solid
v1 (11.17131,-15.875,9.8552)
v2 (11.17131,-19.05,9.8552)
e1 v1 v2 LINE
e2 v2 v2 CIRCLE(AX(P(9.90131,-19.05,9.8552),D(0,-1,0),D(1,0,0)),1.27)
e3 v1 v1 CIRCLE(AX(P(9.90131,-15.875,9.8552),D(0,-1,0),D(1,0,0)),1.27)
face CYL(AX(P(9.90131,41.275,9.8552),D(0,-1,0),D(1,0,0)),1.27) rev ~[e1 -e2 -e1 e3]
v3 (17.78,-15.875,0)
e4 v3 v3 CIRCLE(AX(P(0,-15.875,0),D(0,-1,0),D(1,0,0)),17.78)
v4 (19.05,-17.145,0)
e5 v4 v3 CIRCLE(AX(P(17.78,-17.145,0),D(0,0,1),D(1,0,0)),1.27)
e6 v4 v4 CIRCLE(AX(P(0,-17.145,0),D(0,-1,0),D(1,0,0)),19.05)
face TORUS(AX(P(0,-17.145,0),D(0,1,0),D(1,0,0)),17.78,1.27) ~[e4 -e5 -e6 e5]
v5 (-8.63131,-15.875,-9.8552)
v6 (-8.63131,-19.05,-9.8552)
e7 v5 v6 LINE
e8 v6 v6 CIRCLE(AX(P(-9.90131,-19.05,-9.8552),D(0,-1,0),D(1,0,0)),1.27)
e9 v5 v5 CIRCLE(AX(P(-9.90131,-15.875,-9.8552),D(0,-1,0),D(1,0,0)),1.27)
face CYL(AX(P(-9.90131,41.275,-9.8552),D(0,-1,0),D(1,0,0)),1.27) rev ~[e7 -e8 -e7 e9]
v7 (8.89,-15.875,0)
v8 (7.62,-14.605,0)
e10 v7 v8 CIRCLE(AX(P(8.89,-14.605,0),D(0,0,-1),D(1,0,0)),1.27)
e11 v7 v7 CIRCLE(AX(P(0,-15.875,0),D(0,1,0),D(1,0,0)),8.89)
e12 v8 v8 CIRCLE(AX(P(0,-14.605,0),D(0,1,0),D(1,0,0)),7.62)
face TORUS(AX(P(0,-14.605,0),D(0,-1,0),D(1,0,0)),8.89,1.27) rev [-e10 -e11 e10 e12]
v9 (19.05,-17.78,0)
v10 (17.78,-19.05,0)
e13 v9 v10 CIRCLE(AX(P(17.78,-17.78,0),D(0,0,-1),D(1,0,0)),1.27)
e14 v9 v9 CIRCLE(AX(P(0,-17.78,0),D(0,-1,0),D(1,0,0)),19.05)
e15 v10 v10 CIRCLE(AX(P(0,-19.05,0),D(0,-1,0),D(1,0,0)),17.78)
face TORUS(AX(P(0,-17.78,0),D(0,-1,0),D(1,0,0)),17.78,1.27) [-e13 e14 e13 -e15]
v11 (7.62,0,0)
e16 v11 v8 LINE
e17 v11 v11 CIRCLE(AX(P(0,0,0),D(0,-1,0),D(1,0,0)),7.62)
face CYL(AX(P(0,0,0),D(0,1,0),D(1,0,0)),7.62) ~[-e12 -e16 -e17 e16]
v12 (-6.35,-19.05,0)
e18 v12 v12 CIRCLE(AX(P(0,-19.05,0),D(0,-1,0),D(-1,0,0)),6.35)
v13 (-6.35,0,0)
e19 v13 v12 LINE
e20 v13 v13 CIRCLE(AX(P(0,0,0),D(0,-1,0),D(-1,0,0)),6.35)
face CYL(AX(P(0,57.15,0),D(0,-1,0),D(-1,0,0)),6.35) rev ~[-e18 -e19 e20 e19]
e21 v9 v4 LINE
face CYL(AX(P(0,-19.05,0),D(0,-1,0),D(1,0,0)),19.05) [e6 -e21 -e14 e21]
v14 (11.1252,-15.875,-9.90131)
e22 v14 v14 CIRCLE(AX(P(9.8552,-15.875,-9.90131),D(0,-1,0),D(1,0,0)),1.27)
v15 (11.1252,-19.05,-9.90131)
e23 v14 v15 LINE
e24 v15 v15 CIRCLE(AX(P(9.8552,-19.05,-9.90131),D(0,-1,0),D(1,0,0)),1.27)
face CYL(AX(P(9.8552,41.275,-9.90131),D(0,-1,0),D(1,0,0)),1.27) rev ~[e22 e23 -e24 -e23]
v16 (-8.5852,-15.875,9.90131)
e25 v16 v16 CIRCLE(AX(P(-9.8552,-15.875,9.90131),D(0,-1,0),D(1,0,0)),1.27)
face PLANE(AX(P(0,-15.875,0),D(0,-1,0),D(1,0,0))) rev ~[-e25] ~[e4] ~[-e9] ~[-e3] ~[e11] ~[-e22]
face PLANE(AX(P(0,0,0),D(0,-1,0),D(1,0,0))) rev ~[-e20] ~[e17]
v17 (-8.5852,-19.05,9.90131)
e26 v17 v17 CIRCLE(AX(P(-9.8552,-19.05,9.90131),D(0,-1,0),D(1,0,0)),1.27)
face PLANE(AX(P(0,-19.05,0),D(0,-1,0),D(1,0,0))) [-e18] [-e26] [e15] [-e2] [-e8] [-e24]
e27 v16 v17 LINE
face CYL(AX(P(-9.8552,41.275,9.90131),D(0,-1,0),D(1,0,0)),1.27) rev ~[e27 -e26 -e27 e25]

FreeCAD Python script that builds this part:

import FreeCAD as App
import Part
import Sketcher
from FreeCAD import Vector
Q = App.Units.Quantity


def edges_at(feature, points):
    """Names of the edges that pass closest to the given points."""
    edges = feature.Shape.Edges
    near = lambda p: min(range(len(edges)), key=lambda i: edges[i].distToShape(Part.Vertex(*p))[0])
    return sorted({f"Edge{near(p) + 1}" for p in points})

doc = App.newDocument("Part")
body = doc.addObject("PartDesign::Body", "Body")

# Sketch on XZ plane
sketch1 = body.newObject("Sketcher::SketchObject", "Sketch")
sketch1.AttachmentSupport = (doc.getObject("XZ_Plane"), [""])
sketch1.MapMode = "FlatFace"
sketch1.addGeometry(Part.Circle(Vector(0, 0, 0), Vector(0, 0, 1), 8), False)
sketch1.addConstraint(Sketcher.Constraint("Coincident", 0, 3, -1, 1))
sketch1.addConstraint(Sketcher.Constraint("Diameter", 0, Q("0.6 in")))
pad1 = body.newObject("PartDesign::Pad", "Pad")
pad1.Profile = sketch1
pad1.Length = Q("0.75 in")

# Sketch on XZ plane
sketch2 = body.newObject("Sketcher::SketchObject", "Sketch001")
sketch2.AttachmentSupport = (doc.getObject("XZ_Plane"), [""])
sketch2.MapMode = "FlatFace"
sketch2.AttachmentOffset = App.Placement(Vector(0, 0, 0.75 * 25.4), App.Rotation())
sketch2.addGeometry(Part.Circle(Vector(0, 0, 0), Vector(0, 0, 1), 19), False)
sketch2.addConstraint(Sketcher.Constraint("Coincident", 0, 3, -1, 1))
sketch2.addConstraint(Sketcher.Constraint("Diameter", 0, Q("1.5 in")))
pad2 = body.newObject("PartDesign::Pad", "Pad001")
pad2.Profile = sketch2
pad2.Length = Q("0.125 in")
pad2.Reversed = True

# Sketch on XZ plane
sketch3 = body.newObject("Sketcher::SketchObject", "Sketch002")
sketch3.AttachmentSupport = (doc.getObject("XZ_Plane"), [""])
sketch3.MapMode = "FlatFace"
sketch3.addGeometry(Part.Circle(Vector(0, 0, 0), Vector(0, 0, 1), 6), False)
sketch3.addConstraint(Sketcher.Constraint("Coincident", 0, 3, -1, 1))
sketch3.addConstraint(Sketcher.Constraint("Diameter", 0, Q("0.5 in")))
doc.recompute()
hole = body.newObject("PartDesign::Hole", "Hole")
hole.Profile = sketch3
hole.ThreadType = "None"
hole.Diameter = Q("0.5 in")
hole.DepthType = "ThroughAll"
hole.Reversed = True
doc.recompute()

fillet = body.newObject("PartDesign::Fillet", "Fillet")
fillet.Base = (hole, edges_at(hole, [(-19.05, -15.875, 0), (-7.62, -15.875, 0), (-19.05, -19.05, 0)]))
fillet.Radius = Q("0.05 in")

# Sketch on XZ plane
sketch4 = body.newObject("Sketcher::SketchObject", "Sketch003")
sketch4.AttachmentSupport = (doc.getObject("XZ_Plane"), [""])
sketch4.MapMode = "FlatFace"
sketch4.AttachmentOffset = App.Placement(Vector(0, 0, 0.625 * 25.4), App.Rotation())
sketch4.addGeometry(Part.Circle(Vector(9.9, 9.9, 0), Vector(0, 0, 1), 1.3), False)
sketch4.addGeometry(Part.Circle(Vector(-9.9, 9.9, 0), Vector(0, 0, 1), 1.3), False)
sketch4.addGeometry(Part.Circle(Vector(-9.9, -9.9, 0), Vector(0, 0, 1), 1.3), False)
sketch4.addGeometry(Part.Circle(Vector(9.9, -9.9, 0), Vector(0, 0, 1), 1.3), False)
sketch4.addConstraint(Sketcher.Constraint("Equal", 0, 1))
sketch4.addConstraint(Sketcher.Constraint("Equal", 1, 2))
sketch4.addConstraint(Sketcher.Constraint("Equal", 2, 3))
sketch4.addConstraint(Sketcher.Constraint("Symmetric", 0, 3, 2, 3, -1, 1))
sketch4.addConstraint(Sketcher.Constraint("Symmetric", 1, 3, 3, 3, -1, 1))
sketch4.addConstraint(Sketcher.Constraint("Diameter", 0, Q("0.1 in")))
sketch4.addConstraint(Sketcher.Constraint("DistanceY", -1, 1, 0, 3, Q("0.388 in")))
sketch4.addConstraint(Sketcher.Constraint("DistanceX", 1, 3, -1, 1, Q("0.388 in")))
sketch4.addConstraint(Sketcher.Constraint("DistanceX", -1, 1, 0, 3, 9.90131))
sketch4.addConstraint(Sketcher.Constraint("DistanceY", -1, 1, 1, 3, 9.90131))
doc.recompute()
hole2 = body.newObject("PartDesign::Hole", "Hole001")
hole2.Profile = sketch4
hole2.ThreadType = "None"
hole2.Diameter = Q("0.1 in")
hole2.DepthType = "ThroughAll"
hole2.Reversed = True

doc.recompute()
